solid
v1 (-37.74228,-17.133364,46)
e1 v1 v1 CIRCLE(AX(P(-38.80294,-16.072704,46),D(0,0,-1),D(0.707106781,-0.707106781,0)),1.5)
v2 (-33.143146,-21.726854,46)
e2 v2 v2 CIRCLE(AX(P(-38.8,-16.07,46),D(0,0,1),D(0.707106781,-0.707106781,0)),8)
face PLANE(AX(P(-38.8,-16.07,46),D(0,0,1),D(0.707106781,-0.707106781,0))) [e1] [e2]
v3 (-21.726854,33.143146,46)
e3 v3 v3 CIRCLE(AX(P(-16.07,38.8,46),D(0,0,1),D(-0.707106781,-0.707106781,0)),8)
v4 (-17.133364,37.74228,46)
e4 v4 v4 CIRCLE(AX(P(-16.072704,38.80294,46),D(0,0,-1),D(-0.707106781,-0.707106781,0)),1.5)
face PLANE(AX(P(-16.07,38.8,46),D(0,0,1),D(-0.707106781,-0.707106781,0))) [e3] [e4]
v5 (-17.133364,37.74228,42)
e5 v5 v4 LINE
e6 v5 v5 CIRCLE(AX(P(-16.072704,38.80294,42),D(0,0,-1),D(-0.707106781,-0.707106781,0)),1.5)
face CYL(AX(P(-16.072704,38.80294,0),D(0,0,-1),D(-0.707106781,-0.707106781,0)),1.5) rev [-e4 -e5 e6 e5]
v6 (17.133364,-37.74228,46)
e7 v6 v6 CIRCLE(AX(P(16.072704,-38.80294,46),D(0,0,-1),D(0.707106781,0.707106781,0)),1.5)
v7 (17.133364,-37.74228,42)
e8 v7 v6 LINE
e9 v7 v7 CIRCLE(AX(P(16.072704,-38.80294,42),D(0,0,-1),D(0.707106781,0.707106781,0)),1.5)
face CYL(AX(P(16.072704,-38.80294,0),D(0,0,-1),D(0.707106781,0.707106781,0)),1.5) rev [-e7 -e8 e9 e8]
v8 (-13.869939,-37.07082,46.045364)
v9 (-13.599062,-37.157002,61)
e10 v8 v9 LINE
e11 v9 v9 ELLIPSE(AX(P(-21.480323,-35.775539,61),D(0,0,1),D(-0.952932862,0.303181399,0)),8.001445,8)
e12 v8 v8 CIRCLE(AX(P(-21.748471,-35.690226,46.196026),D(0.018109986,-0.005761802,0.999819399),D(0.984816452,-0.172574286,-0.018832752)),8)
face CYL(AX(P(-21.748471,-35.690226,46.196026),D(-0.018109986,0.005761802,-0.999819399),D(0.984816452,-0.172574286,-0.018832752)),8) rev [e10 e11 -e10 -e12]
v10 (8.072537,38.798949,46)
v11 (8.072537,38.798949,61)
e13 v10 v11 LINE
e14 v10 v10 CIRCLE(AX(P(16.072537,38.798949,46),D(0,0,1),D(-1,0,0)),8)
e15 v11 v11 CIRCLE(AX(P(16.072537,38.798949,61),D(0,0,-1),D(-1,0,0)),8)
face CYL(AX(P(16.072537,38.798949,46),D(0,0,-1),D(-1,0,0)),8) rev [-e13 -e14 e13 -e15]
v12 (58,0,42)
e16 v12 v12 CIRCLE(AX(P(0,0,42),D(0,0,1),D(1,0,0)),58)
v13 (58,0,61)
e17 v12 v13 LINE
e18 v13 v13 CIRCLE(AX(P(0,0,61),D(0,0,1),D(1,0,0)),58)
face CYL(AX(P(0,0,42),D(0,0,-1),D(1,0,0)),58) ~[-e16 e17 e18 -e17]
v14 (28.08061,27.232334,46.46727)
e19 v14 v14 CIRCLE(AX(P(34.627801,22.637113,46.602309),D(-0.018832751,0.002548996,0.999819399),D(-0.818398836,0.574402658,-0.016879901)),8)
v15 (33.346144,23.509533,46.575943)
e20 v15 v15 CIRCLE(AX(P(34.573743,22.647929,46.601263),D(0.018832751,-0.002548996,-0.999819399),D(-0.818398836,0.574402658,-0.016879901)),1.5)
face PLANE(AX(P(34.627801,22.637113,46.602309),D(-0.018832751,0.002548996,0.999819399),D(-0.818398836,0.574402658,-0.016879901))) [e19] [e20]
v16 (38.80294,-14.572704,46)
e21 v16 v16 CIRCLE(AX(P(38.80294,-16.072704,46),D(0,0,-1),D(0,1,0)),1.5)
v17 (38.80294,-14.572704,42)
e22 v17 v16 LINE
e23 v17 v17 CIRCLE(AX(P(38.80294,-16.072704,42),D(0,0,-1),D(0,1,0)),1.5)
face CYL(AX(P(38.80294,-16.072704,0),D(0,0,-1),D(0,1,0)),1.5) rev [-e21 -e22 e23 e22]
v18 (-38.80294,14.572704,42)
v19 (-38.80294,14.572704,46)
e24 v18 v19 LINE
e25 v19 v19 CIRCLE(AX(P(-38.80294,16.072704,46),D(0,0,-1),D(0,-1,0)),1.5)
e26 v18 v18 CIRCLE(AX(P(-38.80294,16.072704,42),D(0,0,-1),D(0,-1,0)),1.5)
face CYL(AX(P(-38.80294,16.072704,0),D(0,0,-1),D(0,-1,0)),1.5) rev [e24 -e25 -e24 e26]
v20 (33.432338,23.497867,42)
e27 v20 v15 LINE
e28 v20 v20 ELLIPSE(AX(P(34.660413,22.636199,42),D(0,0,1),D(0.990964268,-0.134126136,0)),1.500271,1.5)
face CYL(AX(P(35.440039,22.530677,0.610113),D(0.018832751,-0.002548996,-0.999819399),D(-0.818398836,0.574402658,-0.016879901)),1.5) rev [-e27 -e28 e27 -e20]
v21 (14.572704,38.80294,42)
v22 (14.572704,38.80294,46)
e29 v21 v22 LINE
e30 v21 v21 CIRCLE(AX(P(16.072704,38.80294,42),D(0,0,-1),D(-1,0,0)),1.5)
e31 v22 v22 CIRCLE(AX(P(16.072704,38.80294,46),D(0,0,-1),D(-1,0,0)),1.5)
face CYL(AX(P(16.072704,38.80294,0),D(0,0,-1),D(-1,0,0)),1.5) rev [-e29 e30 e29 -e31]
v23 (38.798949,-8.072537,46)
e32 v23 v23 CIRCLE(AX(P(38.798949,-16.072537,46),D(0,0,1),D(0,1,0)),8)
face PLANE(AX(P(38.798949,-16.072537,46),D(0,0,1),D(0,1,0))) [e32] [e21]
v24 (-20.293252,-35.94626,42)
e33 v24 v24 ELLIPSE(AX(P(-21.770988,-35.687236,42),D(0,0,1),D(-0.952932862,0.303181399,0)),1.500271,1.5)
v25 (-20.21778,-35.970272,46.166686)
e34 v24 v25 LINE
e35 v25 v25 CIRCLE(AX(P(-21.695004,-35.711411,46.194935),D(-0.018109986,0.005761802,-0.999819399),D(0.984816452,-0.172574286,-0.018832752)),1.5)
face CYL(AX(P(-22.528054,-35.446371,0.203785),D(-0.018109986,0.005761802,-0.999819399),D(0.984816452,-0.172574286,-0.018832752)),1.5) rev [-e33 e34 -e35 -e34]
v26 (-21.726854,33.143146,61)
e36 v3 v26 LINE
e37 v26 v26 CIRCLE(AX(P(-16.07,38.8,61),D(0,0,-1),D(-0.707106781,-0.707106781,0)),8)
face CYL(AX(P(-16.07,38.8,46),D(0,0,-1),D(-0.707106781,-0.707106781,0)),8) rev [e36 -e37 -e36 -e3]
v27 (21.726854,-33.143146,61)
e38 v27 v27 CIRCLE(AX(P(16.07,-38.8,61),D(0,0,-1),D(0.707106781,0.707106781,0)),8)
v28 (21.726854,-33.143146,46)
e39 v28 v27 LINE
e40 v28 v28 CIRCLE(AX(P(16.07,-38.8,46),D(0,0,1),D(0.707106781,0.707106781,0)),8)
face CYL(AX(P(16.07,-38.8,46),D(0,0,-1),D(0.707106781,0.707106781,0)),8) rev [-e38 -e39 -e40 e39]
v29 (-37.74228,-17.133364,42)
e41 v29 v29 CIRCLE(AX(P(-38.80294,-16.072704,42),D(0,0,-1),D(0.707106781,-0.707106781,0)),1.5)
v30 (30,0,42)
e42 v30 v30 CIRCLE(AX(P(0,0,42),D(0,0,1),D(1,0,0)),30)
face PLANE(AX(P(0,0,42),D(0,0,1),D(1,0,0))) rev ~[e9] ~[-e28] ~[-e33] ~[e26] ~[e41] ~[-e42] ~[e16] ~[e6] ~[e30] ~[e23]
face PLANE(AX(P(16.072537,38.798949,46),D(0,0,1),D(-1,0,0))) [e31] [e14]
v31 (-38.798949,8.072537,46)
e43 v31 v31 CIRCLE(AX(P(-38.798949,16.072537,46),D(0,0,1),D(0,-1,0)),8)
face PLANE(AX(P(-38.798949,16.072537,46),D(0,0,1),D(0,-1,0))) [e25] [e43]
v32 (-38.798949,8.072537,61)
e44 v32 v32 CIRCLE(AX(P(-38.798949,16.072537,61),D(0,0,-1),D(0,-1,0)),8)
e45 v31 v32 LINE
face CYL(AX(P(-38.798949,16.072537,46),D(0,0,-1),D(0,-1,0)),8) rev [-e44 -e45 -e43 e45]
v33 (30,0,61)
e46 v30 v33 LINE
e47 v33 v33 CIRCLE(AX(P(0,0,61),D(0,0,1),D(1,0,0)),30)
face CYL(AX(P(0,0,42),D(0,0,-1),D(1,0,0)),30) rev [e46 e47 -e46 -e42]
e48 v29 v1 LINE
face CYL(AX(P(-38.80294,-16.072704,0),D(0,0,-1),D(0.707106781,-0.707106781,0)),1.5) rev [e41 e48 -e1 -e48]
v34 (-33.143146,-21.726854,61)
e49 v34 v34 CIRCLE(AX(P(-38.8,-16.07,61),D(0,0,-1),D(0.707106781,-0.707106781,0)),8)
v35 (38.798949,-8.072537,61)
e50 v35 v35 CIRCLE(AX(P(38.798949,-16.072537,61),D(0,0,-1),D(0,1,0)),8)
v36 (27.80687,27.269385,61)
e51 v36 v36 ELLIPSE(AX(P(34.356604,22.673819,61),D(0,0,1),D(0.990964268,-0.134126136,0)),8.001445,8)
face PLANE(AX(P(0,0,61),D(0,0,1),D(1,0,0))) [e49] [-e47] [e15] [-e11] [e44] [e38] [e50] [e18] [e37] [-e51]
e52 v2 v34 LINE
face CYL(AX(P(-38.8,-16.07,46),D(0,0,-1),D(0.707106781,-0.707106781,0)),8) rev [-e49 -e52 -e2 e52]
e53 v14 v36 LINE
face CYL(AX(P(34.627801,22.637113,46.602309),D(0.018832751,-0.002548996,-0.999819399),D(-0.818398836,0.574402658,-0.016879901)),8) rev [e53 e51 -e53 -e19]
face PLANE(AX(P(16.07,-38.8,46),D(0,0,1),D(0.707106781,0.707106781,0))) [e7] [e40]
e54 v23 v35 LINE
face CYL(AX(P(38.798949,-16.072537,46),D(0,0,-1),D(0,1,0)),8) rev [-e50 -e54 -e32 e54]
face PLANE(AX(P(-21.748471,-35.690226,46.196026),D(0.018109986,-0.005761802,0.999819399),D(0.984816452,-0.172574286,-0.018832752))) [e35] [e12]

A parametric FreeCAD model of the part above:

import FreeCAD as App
import Part
import Sketcher
Q = App.Units.Quantity

doc = App.newDocument("Part")
body = doc.addObject("PartDesign::Body", "Body")

# Sketch on XY plane
sketch1 = body.newObject("Sketcher::SketchObject", "Sketch")
sketch1.AttachmentSupport = (doc.getObject("XY_Plane"), [""])
sketch1.MapMode = "FlatFace"
sketch1.addGeometry(Part.Circle(App.Vector(38.8, -16.1, 0), App.Vector(0, 0, 1), 1.5), False)
sketch1.addConstraint(Sketcher.Constraint("Diameter", 0, Q("3 mm")))
sketch1.addConstraint(Sketcher.Constraint("DistanceX", -1, 1, 0, 3, Q("38.80294 mm")))
sketch1.addConstraint(Sketcher.Constraint("DistanceY", 0, 3, -1, 1, Q("16.072704 mm")))
pad1 = body.newObject("PartDesign::Pad", "Pad")
pad1.Profile = sketch1
pad1.Length = 100
body2 = doc.addObject("PartDesign::Body", "Body001")

# Sketch on XY plane
sketch2 = body2.newObject("Sketcher::SketchObject", "Sketch001")
sketch2.AttachmentSupport = (doc.getObject("XY_Plane001"), [""])
sketch2.MapMode = "FlatFace"
sketch2.addGeometry(Part.Circle(App.Vector(0, 0, 0), App.Vector(0, 0, 1), 1.5), False)
sketch2.addConstraint(Sketcher.Constraint("Coincident", 0, 3, -1, 1))
sketch2.addConstraint(Sketcher.Constraint("Diameter", 0, Q("3 mm")))
pad2 = body2.newObject("PartDesign::Pad", "Pad001")
pad2.Profile = sketch2
pad2.Length = 100
body3 = doc.addObject("PartDesign::Body", "Body002")
doc.recompute()

body2.Placement = App.Placement(App.Vector(0, 0, 0), App.Rotation(App.Vector(1, 0, 0), 359.499645))
boolean = body3.newObject("PartDesign::Boolean", "Boolean")
boolean.Type = "Fuse"
boolean.addObjects([body2])
body4 = doc.addObject("PartDesign::Body", "Body003")
doc.recompute()

body3.Placement = App.Placement(App.Vector(0, 0, 0), App.Rotation(App.Vector(0, 1, 0), 0.967193))
boolean2 = body4.newObject("PartDesign::Boolean", "Boolean001")
boolean2.Type = "Fuse"
boolean2.addObjects([body3])
body5 = doc.addObject("PartDesign::Body", "Body004")
doc.recompute()

body4.Placement = App.Placement(App.Vector(35.440039, 22.530677, 0.610113), App.Rotation(App.Vector(0, 0, 1), 144.93646))
boolean3 = body5.newObject("PartDesign::Boolean", "Boolean002")
boolean3.Type = "Fuse"
boolean3.addObjects([body4])
body6 = doc.addObject("PartDesign::Body", "Body005")

# Sketch on XY plane
sketch3 = body6.newObject("Sketcher::SketchObject", "Sketch002")
sketch3.AttachmentSupport = (doc.getObject("XY_Plane005"), [""])
sketch3.MapMode = "FlatFace"
sketch3.addGeometry(Part.Circle(App.Vector(16.1, 38.8, 0), App.Vector(0, 0, 1), 1.5), False)
sketch3.addConstraint(Sketcher.Constraint("Diameter", 0, Q("3 mm")))
sketch3.addConstraint(Sketcher.Constraint("DistanceY", -1, 1, 0, 3, Q("38.80294 mm")))
sketch3.addConstraint(Sketcher.Constraint("DistanceX", -1, 1, 0, 3, Q("16.072704 mm")))
pad3 = body6.newObject("PartDesign::Pad", "Pad002")
pad3.Profile = sketch3
pad3.Length = 100
body7 = doc.addObject("PartDesign::Body", "Body006")

# Sketch on XY plane
sketch4 = body7.newObject("Sketcher::SketchObject", "Sketch003")
sketch4.AttachmentSupport = (doc.getObject("XY_Plane006"), [""])
sketch4.MapMode = "FlatFace"
sketch4.addGeometry(Part.Circle(App.Vector(0, 0, 0), App.Vector(0, 0, 1), 1.5), False)
sketch4.addConstraint(Sketcher.Constraint("Coincident", 0, 3, -1, 1))
sketch4.addConstraint(Sketcher.Constraint("Diameter", 0, Q("3 mm")))
pad4 = body7.newObject("PartDesign::Pad", "Pad003")
pad4.Profile = sketch4
pad4.Length = 100
body8 = doc.addObject("PartDesign::Body", "Body007")
doc.recompute()

body7.Placement = App.Placement(App.Vector(-16.072704, 38.80294, 0), App.Rotation(App.Vector(0, 0, 1), 225))
boolean4 = body8.newObject("PartDesign::Boolean", "Boolean003")
boolean4.Type = "Fuse"
boolean4.addObjects([body7])
body9 = doc.addObject("PartDesign::Body", "Body008")

# Sketch on XY plane
sketch5 = body9.newObject("Sketcher::SketchObject", "Sketch004")
sketch5.AttachmentSupport = (doc.getObject("XY_Plane008"), [""])
sketch5.MapMode = "FlatFace"
sketch5.addGeometry(Part.Circle(App.Vector(-38.8, 16.1, 0), App.Vector(0, 0, 1), 1.5), False)
sketch5.addConstraint(Sketcher.Constraint("Diameter", 0, Q("3 mm")))
sketch5.addConstraint(Sketcher.Constraint("DistanceX", 0, 3, -1, 1, Q("38.80294 mm")))
sketch5.addConstraint(Sketcher.Constraint("DistanceY", -1, 1, 0, 3, Q("16.072704 mm")))
pad5 = body9.newObject("PartDesign::Pad", "Pad004")
pad5.Profile = sketch5
pad5.Length = 100
body10 = doc.addObject("PartDesign::Body", "Body009")

# Sketch on XY plane
sketch6 = body10.newObject("Sketcher::SketchObject", "Sketch005")
sketch6.AttachmentSupport = (doc.getObject("XY_Plane009"), [""])
sketch6.MapMode = "FlatFace"
sketch6.addGeometry(Part.Circle(App.Vector(0, 0, 0), App.Vector(0, 0, 1), 1.5), False)
sketch6.addConstraint(Sketcher.Constraint("Coincident", 0, 3, -1, 1))
sketch6.addConstraint(Sketcher.Constraint("Diameter", 0, Q("3 mm")))
pad6 = body10.newObject("PartDesign::Pad", "Pad005")
pad6.Profile = sketch6
pad6.Length = 100
body11 = doc.addObject("PartDesign::Body", "Body010")
doc.recompute()

body10.Placement = App.Placement(App.Vector(-38.80294, -16.072704, 0), App.Rotation(App.Vector(0, 0, -1), 45))
boolean5 = body11.newObject("PartDesign::Boolean", "Boolean004")
boolean5.Type = "Fuse"
boolean5.addObjects([body10])
body12 = doc.addObject("PartDesign::Body", "Body011")

# Sketch on XY plane
sketch7 = body12.newObject("Sketcher::SketchObject", "Sketch006")
sketch7.AttachmentSupport = (doc.getObject("XY_Plane011"), [""])
sketch7.MapMode = "FlatFace"
sketch7.addGeometry(Part.Circle(App.Vector(0, 0, 0), App.Vector(0, 0, 1), 1.5), False)
sketch7.addConstraint(Sketcher.Constraint("Coincident", 0, 3, -1, 1))
sketch7.addConstraint(Sketcher.Constraint("Diameter", 0, Q("3 mm")))
pad7 = body12.newObject("PartDesign::Pad", "Pad006")
pad7.Profile = sketch7
pad7.Length = 100
body13 = doc.addObject("PartDesign::Body", "Body012")
doc.recompute()

body12.Placement = App.Placement(App.Vector(0, 0, 0), App.Rotation(App.Vector(1, 0, 0), 0.146073))
boolean6 = body13.newObject("PartDesign::Boolean", "Boolean005")
boolean6.Type = "Fuse"
boolean6.addObjects([body12])
body14 = doc.addObject("PartDesign::Body", "Body013")
doc.recompute()

body13.Placement = App.Placement(App.Vector(0, 0, 0), App.Rotation(App.Vector(0, 1, 0), 1.079101))
boolean7 = body14.newObject("PartDesign::Boolean", "Boolean006")
boolean7.Type = "Fuse"
boolean7.addObjects([body13])
body15 = doc.addObject("PartDesign::Body", "Body014")
doc.recompute()

body14.Placement = App.Placement(App.Vector(-22.528054, -35.446371, 0.203785), App.Rotation(App.Vector(0, 0, 1), 350.060692))
boolean8 = body15.newObject("PartDesign::Boolean", "Boolean007")
boolean8.Type = "Fuse"
boolean8.addObjects([body14])
body16 = doc.addObject("PartDesign::Body", "Body015")

# Sketch on XY plane
sketch8 = body16.newObject("Sketcher::SketchObject", "Sketch007")
sketch8.AttachmentSupport = (doc.getObject("XY_Plane015"), [""])
sketch8.MapMode = "FlatFace"
sketch8.addGeometry(Part.Circle(App.Vector(0, 0, 0), App.Vector(0, 0, 1), 1.5), False)
sketch8.addConstraint(Sketcher.Constraint("Coincident", 0, 3, -1, 1))
sketch8.addConstraint(Sketcher.Constraint("Diameter", 0, Q("3 mm")))
pad8 = body16.newObject("PartDesign::Pad", "Pad007")
pad8.Profile = sketch8
pad8.Length = 100
body17 = doc.addObject("PartDesign::Body", "Body016")
body17.AllowCompound = True
doc.recompute()

body16.Placement = App.Placement(App.Vector(16.072704, -38.80294, 0), App.Rotation(App.Vector(0, 0, 1), 45))
boolean9 = body17.newObject("PartDesign::Boolean", "Boolean008")
boolean9.Type = "Fuse"
boolean9.addObjects([body16])
doc.recompute()

boolean10 = body17.newObject("PartDesign::Boolean", "Boolean009")
boolean10.Type = "Fuse"
boolean10.addObjects([body])
doc.recompute()

boolean11 = body17.newObject("PartDesign::Boolean", "Boolean010")
boolean11.Type = "Fuse"
boolean11.addObjects([body5])
doc.recompute()

boolean12 = body17.newObject("PartDesign::Boolean", "Boolean011")
boolean12.Type = "Fuse"
boolean12.addObjects([body6])
doc.recompute()

boolean13 = body17.newObject("PartDesign::Boolean", "Boolean012")
boolean13.Type = "Fuse"
boolean13.addObjects([body8])
doc.recompute()

boolean14 = body17.newObject("PartDesign::Boolean", "Boolean013")
boolean14.Type = "Fuse"
boolean14.addObjects([body9])
doc.recompute()

boolean15 = body17.newObject("PartDesign::Boolean", "Boolean014")
boolean15.Type = "Fuse"
boolean15.addObjects([body11])
doc.recompute()

boolean16 = body17.newObject("PartDesign::Boolean", "Boolean015")
boolean16.Type = "Fuse"
boolean16.addObjects([body15])
body18 = doc.addObject("PartDesign::Body", "Body017")

# Sketch on XY plane
sketch9 = body18.newObject("Sketcher::SketchObject", "Sketch008")
sketch9.AttachmentSupport = (doc.getObject("XY_Plane017"), [""])
sketch9.MapMode = "FlatFace"
sketch9.AttachmentOffset = App.Placement(App.Vector(0, 0, 43), App.Rotation())
sketch9.addGeometry(Part.Circle(App.Vector(-39, 16, 0), App.Vector(0, 0, 1), 8), False)
sketch9.addConstraint(Sketcher.Constraint("Diameter", 0, Q("16 mm")))
sketch9.addConstraint(Sketcher.Constraint("DistanceX", 0, 3, -1, 1, Q("38.798949 mm")))
sketch9.addConstraint(Sketcher.Constraint("DistanceY", -1, 1, 0, 3, Q("16.072537 mm")))
pad9 = body18.newObject("PartDesign::Pad", "Pad008")
pad9.Profile = sketch9
pad9.Length = 18
body19 = doc.addObject("PartDesign::Body", "Body018")

# Sketch on XY plane
sketch10 = body19.newObject("Sketcher::SketchObject", "Sketch009")
sketch10.AttachmentSupport = (doc.getObject("XY_Plane018"), [""])
sketch10.MapMode = "FlatFace"
sketch10.addGeometry(Part.Circle(App.Vector(0, 0, 0), App.Vector(0, 0, 1), 8), False)
sketch10.addConstraint(Sketcher.Constraint("Coincident", 0, 3, -1, 1))
sketch10.addConstraint(Sketcher.Constraint("Diameter", 0, Q("16 mm")))
pad10 = body19.newObject("PartDesign::Pad", "Pad009")
pad10.Profile = sketch10
pad10.Length = 18
body20 = doc.addObject("PartDesign::Body", "Body019")
doc.recompute()

body19.Placement = App.Placement(App.Vector(-16.07, 38.8, 43), App.Rotation(App.Vector(0, 0, 1), 225))
boolean17 = body20.newObject("PartDesign::Boolean", "Boolean016")
boolean17.Type = "Fuse"
boolean17.addObjects([body19])
body21 = doc.addObject("PartDesign::Body", "Body020")

# Sketch on XY plane
sketch11 = body21.newObject("Sketcher::SketchObject", "Sketch010")
sketch11.AttachmentSupport = (doc.getObject("XY_Plane020"), [""])
sketch11.MapMode = "FlatFace"
sketch11.AttachmentOffset = App.Placement(App.Vector(0, 0, 43), App.Rotation())
sketch11.addGeometry(Part.Circle(App.Vector(16, 39, 0), App.Vector(0, 0, 1), 8), False)
sketch11.addConstraint(Sketcher.Constraint("Diameter", 0, Q("16 mm")))
sketch11.addConstraint(Sketcher.Constraint("DistanceY", -1, 1, 0, 3, Q("38.798949 mm")))
sketch11.addConstraint(Sketcher.Constraint("DistanceX", -1, 1, 0, 3, Q("16.072537 mm")))
pad11 = body21.newObject("PartDesign::Pad", "Pad010")
pad11.Profile = sketch11
pad11.Length = 18
body22 = doc.addObject("PartDesign::Body", "Body021")

# Sketch on XY plane
sketch12 = body22.newObject("Sketcher::SketchObject", "Sketch011")
sketch12.AttachmentSupport = (doc.getObject("XY_Plane021"), [""])
sketch12.MapMode = "FlatFace"
sketch12.addGeometry(Part.Circle(App.Vector(0, 0, 0), App.Vector(0, 0, 1), 8), False)
sketch12.addConstraint(Sketcher.Constraint("Coincident", 0, 3, -1, 1))
sketch12.addConstraint(Sketcher.Constraint("Diameter", 0, Q("16 mm")))
pad12 = body22.newObject("PartDesign::Pad", "Pad011")
pad12.Profile = sketch12
pad12.Length = 18
body23 = doc.addObject("PartDesign::Body", "Body022")
doc.recompute()

body22.Placement = App.Placement(App.Vector(0, 0, 0), App.Rotation(App.Vector(1, 0, 0), 359.499645))
boolean18 = body23.newObject("PartDesign::Boolean", "Boolean017")
boolean18.Type = "Fuse"
boolean18.addObjects([body22])
body24 = doc.addObject("PartDesign::Body", "Body023")
doc.recompute()

body23.Placement = App.Placement(App.Vector(0, 0, 0), App.Rotation(App.Vector(0, 1, 0), 0.967193))
boolean19 = body24.newObject("PartDesign::Boolean", "Boolean018")
boolean19.Type = "Fuse"
boolean19.addObjects([body23])
body25 = doc.addObject("PartDesign::Body", "Body024")
doc.recompute()

body24.Placement = App.Placement(App.Vector(34.627801, 22.637113, 43.602309), App.Rotation(App.Vector(0, 0, 1), 144.93646))
boolean20 = body25.newObject("PartDesign::Boolean", "Boolean019")
boolean20.Type = "Fuse"
boolean20.addObjects([body24])
body26 = doc.addObject("PartDesign::Body", "Body025")

# Sketch on XY plane
sketch13 = body26.newObject("Sketcher::SketchObject", "Sketch012")
sketch13.AttachmentSupport = (doc.getObject("XY_Plane025"), [""])
sketch13.MapMode = "FlatFace"
sketch13.AttachmentOffset = App.Placement(App.Vector(0, 0, 43), App.Rotation())
sketch13.addGeometry(Part.Circle(App.Vector(39, -16, 0), App.Vector(0, 0, 1), 8), False)
sketch13.addConstraint(Sketcher.Constraint("Diameter", 0, Q("16 mm")))
sketch13.addConstraint(Sketcher.Constraint("DistanceX", -1, 1, 0, 3, Q("38.798949 mm")))
sketch13.addConstraint(Sketcher.Constraint("DistanceY", 0, 3, -1, 1, Q("16.072537 mm")))
pad13 = body26.newObject("PartDesign::Pad", "Pad012")
pad13.Profile = sketch13
pad13.Length = 18
body27 = doc.addObject("PartDesign::Body", "Body026")

# Sketch on XY plane
sketch14 = body27.newObject("Sketcher::SketchObject", "Sketch013")
sketch14.AttachmentSupport = (doc.getObject("XY_Plane026"), [""])
sketch14.MapMode = "FlatFace"
sketch14.addGeometry(Part.Circle(App.Vector(0, 0, 0), App.Vector(0, 0, 1), 8), False)
sketch14.addConstraint(Sketcher.Constraint("Coincident", 0, 3, -1, 1))
sketch14.addConstraint(Sketcher.Constraint("Diameter", 0, Q("16 mm")))
pad14 = body27.newObject("PartDesign::Pad", "Pad013")
pad14.Profile = sketch14
pad14.Length = 18
body28 = doc.addObject("PartDesign::Body", "Body027")
doc.recompute()

body27.Placement = App.Placement(App.Vector(16.07, -38.8, 43), App.Rotation(App.Vector(0, 0, 1), 45))
boolean21 = body28.newObject("PartDesign::Boolean", "Boolean020")
boolean21.Type = "Fuse"
boolean21.addObjects([body27])
body29 = doc.addObject("PartDesign::Body", "Body028")

# Sketch on XY plane
sketch15 = body29.newObject("Sketcher::SketchObject", "Sketch014")
sketch15.AttachmentSupport = (doc.getObject("XY_Plane028"), [""])
sketch15.MapMode = "FlatFace"
sketch15.addGeometry(Part.Circle(App.Vector(0, 0, 0), App.Vector(0, 0, 1), 8), False)
sketch15.addConstraint(Sketcher.Constraint("Coincident", 0, 3, -1, 1))
sketch15.addConstraint(Sketcher.Constraint("Diameter", 0, Q("16 mm")))
pad15 = body29.newObject("PartDesign::Pad", "Pad014")
pad15.Profile = sketch15
pad15.Length = 18
body30 = doc.addObject("PartDesign::Body", "Body029")
doc.recompute()

body29.Placement = App.Placement(App.Vector(0, 0, 0), App.Rotation(App.Vector(1, 0, 0), 0.146073))
boolean22 = body30.newObject("PartDesign::Boolean", "Boolean021")
boolean22.Type = "Fuse"
boolean22.addObjects([body29])
body31 = doc.addObject("PartDesign::Body", "Body030")
doc.recompute()

body30.Placement = App.Placement(App.Vector(0, 0, 0), App.Rotation(App.Vector(0, 1, 0), 1.079101))
boolean23 = body31.newObject("PartDesign::Boolean", "Boolean022")
boolean23.Type = "Fuse"
boolean23.addObjects([body30])
body32 = doc.addObject("PartDesign::Body", "Body031")
doc.recompute()

body31.Placement = App.Placement(App.Vector(-21.748471, -35.690226, 43.196026), App.Rotation(App.Vector(0, 0, 1), 350.060692))
boolean24 = body32.newObject("PartDesign::Boolean", "Boolean023")
boolean24.Type = "Fuse"
boolean24.addObjects([body31])
body33 = doc.addObject("PartDesign::Body", "Body032")

# Sketch on XY plane
sketch16 = body33.newObject("Sketcher::SketchObject", "Sketch015")
sketch16.AttachmentSupport = (doc.getObject("XY_Plane032"), [""])
sketch16.MapMode = "FlatFace"
sketch16.addGeometry(Part.Circle(App.Vector(0, 0, 0), App.Vector(0, 0, 1), 8), False)
sketch16.addConstraint(Sketcher.Constraint("Coincident", 0, 3, -1, 1))
sketch16.addConstraint(Sketcher.Constraint("Diameter", 0, Q("16 mm")))
pad16 = body33.newObject("PartDesign::Pad", "Pad015")
pad16.Profile = sketch16
pad16.Length = 18
body34 = doc.addObject("PartDesign::Body", "Body033")
body34.AllowCompound = True
doc.recompute()

body33.Placement = App.Placement(App.Vector(-38.8, -16.07, 43), App.Rotation(App.Vector(0, 0, -1), 45))
boolean25 = body34.newObject("PartDesign::Boolean", "Boolean024")
boolean25.Type = "Fuse"
boolean25.addObjects([body33])
doc.recompute()

boolean26 = body34.newObject("PartDesign::Boolean", "Boolean025")
boolean26.Type = "Fuse"
boolean26.addObjects([body18])
doc.recompute()

boolean27 = body34.newObject("PartDesign::Boolean", "Boolean026")
boolean27.Type = "Fuse"
boolean27.addObjects([body20])
doc.recompute()

boolean28 = body34.newObject("PartDesign::Boolean", "Boolean027")
boolean28.Type = "Fuse"
boolean28.addObjects([body21])
doc.recompute()

boolean29 = body34.newObject("PartDesign::Boolean", "Boolean028")
boolean29.Type = "Fuse"
boolean29.addObjects([body25])
doc.recompute()

boolean30 = body34.newObject("PartDesign::Boolean", "Boolean029")
boolean30.Type = "Fuse"
boolean30.addObjects([body26])
doc.recompute()

boolean31 = body34.newObject("PartDesign::Boolean", "Boolean030")
boolean31.Type = "Fuse"
boolean31.addObjects([body28])
doc.recompute()

boolean32 = body34.newObject("PartDesign::Boolean", "Boolean031")
boolean32.Type = "Fuse"
boolean32.addObjects([body32])
body35 = doc.addObject("PartDesign::Body", "Body034")
body35.AllowCompound = True
doc.recompute()

body34.Placement = App.Placement(App.Vector(0, 0, 3), App.Rotation(App.Vector(0, 0, 1), 0))
boolean33 = body35.newObject("PartDesign::Boolean", "Boolean032")
boolean33.Type = "Fuse"
boolean33.addObjects([body34])
body36 = doc.addObject("PartDesign::Body", "Body035")

# Sketch on XY plane
sketch17 = body36.newObject("Sketcher::SketchObject", "Sketch016")
sketch17.AttachmentSupport = (doc.getObject("XY_Plane035"), [""])
sketch17.MapMode = "FlatFace"
sketch17.AttachmentOffset = App.Placement(App.Vector(0, 0, 42), App.Rotation())
sketch17.addGeometry(Part.Circle(App.Vector(0, 0, 0), App.Vector(0, 0, 1), 58), False)
sketch17.addGeometry(Part.Circle(App.Vector(0, 0, 0), App.Vector(0, 0, 1), 30), False)
sketch17.addConstraint(Sketcher.Constraint("Coincident", 0, 3, -1, 1))
sketch17.addConstraint(Sketcher.Constraint("Coincident", 1, 3, -1, 1))
sketch17.addConstraint(Sketcher.Constraint("Diameter", 0, Q("116 mm")))
sketch17.addConstraint(Sketcher.Constraint("Diameter", 1, Q("60 mm")))
pad17 = body36.newObject("PartDesign::Pad", "Pad016")
pad17.Profile = sketch17
pad17.Length = 19
doc.recompute()

boolean34 = body36.newObject("PartDesign::Boolean", "Boolean033")
boolean34.Type = "Cut"
boolean34.addObjects([body35])
doc.recompute()

boolean35 = body36.newObject("PartDesign::Boolean", "Boolean034")
boolean35.Type = "Cut"
boolean35.addObjects([body17])

doc.recompute()
